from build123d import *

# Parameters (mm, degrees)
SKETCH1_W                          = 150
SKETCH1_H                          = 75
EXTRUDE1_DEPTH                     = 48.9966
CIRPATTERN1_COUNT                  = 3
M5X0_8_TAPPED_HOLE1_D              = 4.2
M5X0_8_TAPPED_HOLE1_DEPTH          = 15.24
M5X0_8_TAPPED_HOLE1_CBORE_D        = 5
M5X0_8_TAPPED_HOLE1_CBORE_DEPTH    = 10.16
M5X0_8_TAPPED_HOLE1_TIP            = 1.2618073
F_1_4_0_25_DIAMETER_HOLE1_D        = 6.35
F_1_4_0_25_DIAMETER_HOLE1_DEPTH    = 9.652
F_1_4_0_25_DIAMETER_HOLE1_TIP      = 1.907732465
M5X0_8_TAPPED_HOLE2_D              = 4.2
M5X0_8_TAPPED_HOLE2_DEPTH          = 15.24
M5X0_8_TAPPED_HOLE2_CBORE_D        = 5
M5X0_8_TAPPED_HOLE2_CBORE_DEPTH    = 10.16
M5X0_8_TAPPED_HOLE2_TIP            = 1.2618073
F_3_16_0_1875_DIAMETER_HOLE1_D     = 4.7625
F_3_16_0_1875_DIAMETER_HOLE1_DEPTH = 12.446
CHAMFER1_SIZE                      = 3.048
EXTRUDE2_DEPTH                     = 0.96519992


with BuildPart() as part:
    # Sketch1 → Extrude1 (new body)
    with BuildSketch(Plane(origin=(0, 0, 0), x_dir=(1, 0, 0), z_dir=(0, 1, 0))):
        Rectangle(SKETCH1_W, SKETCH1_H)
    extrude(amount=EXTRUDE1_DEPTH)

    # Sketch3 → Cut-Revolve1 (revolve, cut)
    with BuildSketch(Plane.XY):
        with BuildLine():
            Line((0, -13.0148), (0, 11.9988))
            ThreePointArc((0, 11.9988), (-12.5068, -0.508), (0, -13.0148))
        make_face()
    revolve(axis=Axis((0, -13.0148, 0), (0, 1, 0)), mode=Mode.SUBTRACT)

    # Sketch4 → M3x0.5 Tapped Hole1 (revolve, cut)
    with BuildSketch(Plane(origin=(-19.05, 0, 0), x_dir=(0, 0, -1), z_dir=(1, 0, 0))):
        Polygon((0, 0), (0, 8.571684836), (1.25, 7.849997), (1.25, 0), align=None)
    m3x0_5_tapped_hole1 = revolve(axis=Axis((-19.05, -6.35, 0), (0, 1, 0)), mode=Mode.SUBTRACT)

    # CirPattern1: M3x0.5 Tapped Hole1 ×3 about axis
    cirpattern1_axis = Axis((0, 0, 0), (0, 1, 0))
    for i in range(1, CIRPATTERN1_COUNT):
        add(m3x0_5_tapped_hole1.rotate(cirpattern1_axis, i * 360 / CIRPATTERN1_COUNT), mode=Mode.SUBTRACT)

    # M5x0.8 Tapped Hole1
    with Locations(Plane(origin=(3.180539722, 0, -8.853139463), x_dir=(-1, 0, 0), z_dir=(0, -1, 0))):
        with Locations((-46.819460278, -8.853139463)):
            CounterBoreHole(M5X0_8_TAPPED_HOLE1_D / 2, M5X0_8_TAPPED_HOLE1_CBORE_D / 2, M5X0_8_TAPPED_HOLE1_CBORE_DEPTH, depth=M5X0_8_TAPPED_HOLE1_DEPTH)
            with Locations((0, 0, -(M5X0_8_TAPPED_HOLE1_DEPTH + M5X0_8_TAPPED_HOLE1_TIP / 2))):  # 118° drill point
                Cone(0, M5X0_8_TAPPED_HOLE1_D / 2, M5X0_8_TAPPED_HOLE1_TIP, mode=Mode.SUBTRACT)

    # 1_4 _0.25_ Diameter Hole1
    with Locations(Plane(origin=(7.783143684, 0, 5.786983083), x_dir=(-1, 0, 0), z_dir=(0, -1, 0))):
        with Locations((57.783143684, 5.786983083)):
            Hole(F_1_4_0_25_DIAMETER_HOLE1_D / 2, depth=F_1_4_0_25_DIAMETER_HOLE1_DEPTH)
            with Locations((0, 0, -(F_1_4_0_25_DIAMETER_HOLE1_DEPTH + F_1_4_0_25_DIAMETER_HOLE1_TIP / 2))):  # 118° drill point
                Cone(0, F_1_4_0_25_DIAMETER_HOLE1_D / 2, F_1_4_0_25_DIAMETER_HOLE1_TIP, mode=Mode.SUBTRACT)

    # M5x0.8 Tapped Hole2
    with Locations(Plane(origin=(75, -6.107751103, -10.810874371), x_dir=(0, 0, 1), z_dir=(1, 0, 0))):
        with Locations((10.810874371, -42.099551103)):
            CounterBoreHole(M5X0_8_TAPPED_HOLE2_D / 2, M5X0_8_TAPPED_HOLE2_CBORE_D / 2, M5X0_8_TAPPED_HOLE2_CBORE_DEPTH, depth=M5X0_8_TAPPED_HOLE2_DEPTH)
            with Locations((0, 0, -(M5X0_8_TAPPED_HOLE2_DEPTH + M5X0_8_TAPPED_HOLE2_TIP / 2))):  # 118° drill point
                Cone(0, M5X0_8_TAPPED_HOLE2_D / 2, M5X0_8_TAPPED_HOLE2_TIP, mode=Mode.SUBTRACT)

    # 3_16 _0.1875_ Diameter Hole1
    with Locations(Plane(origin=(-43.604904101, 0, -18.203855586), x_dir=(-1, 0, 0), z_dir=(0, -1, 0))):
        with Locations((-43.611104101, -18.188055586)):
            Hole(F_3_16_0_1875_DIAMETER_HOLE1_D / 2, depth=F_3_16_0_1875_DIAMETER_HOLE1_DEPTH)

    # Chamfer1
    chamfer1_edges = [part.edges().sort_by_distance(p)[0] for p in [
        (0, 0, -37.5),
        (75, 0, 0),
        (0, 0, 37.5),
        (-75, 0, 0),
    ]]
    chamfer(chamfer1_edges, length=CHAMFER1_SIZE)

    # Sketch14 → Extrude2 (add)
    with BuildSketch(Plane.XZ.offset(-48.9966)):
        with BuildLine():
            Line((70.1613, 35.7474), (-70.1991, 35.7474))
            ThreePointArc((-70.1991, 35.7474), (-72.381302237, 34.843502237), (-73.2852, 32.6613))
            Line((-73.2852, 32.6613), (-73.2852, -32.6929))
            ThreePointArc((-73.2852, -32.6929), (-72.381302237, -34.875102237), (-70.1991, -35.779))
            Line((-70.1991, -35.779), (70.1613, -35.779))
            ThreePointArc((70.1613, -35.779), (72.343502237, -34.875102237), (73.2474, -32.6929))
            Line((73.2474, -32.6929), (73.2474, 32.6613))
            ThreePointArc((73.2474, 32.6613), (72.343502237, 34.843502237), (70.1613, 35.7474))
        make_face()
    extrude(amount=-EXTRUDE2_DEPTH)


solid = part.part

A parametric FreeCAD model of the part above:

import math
import FreeCAD as App
import Part
import Sketcher

V = App.Vector
Q = App.Units.Quantity


def edges_at(feature, points):
    """Names of the edges that pass closest to the given points."""
    edges = feature.Shape.Edges
    near = lambda p: min(range(len(edges)), key=lambda i: edges[i].distToShape(Part.Vertex(*p))[0])
    return sorted({f"Edge{near(p) + 1}" for p in points})

doc = App.newDocument("Part")
body = doc.addObject("PartDesign::Body", "Body")

sketch1 = body.newObject("Sketcher::SketchObject", "Sketch")
sketch1.AttachmentSupport = (doc.getObject("XZ_Plane"), [""])
sketch1.MapMode = "FlatFace"
sketch1.addGeometry(Part.LineSegment(V(-75, -37.5, 0), V(-75, 37.5, 0)), False)
sketch1.addGeometry(Part.LineSegment(V(-75, 37.5, 0), V(75, 37.5, 0)), False)
sketch1.addGeometry(Part.LineSegment(V(75, 37.5, 0), V(75, -37.5, 0)), False)
sketch1.addGeometry(Part.LineSegment(V(75, -37.5, 0), V(-75, -37.5, 0)), False)
sketch1.addConstraint(Sketcher.Constraint("Coincident", 0, 2, 1, 1))
sketch1.addConstraint(Sketcher.Constraint("Coincident", 1, 2, 2, 1))
sketch1.addConstraint(Sketcher.Constraint("Coincident", 2, 2, 3, 1))
sketch1.addConstraint(Sketcher.Constraint("Coincident", 3, 2, 0, 1))
sketch1.addConstraint(Sketcher.Constraint("Vertical", 0))
sketch1.addConstraint(Sketcher.Constraint("Horizontal", 1))
sketch1.addConstraint(Sketcher.Constraint("Vertical", 2))
sketch1.addConstraint(Sketcher.Constraint("Horizontal", 3))
sketch1.addConstraint(Sketcher.Constraint("Symmetric", 0, 2, 2, 2, -1, 1))
sketch1.addConstraint(Sketcher.Constraint("DistanceX", 1, 1, 1, 2, Q("150 mm")))
sketch1.addConstraint(Sketcher.Constraint("DistanceY", 0, 1, 0, 2, Q("75 mm")))
pad1 = body.newObject("PartDesign::Pad", "Pad")
pad1.Profile = sketch1
pad1.Length = Q("1.929 in")
pad1.Reversed = True

sketch2 = body.newObject("Sketcher::SketchObject", "Sketch001")
sketch2.AttachmentSupport = (doc.getObject("XY_Plane"), [""])
sketch2.MapMode = "FlatFace"
sketch2.addGeometry(Part.LineSegment(V(0, -13.0148, 0), V(0, 11.9988, 0)), False)
sketch2.addGeometry(Part.ArcOfCircle(Part.Circle(V(0, -0.508, 0), V(0, 0, 1), 12.5068), math.radians(90), math.radians(270)), False)
sketch2.addConstraint(Sketcher.Constraint("Coincident", 0, 1, 1, 2))
sketch2.addConstraint(Sketcher.Constraint("Coincident", 1, 1, 0, 2))
sketch2.addConstraint(Sketcher.Constraint("Vertical", 0))
sketch2.addConstraint(Sketcher.Constraint("PointOnObject", 1, 3, -2))
sketch2.addConstraint(Sketcher.Constraint("PointOnObject", 0, 1, -2))
sketch2.addConstraint(Sketcher.Constraint("DistanceY", 1, 3, -1, 1, Q("0.02 in")))
sketch2.addConstraint(Sketcher.Constraint("Radius", 1, Q("12.5068 mm")))
groove = body.newObject("PartDesign::Groove", "Groove")
groove.Profile = sketch2
groove.ReferenceAxis = (sketch2, ["V_Axis"])
groove.Angle = 360

sketch3 = body.newObject("Sketcher::SketchObject", "Sketch002")
sketch3.AttachmentSupport = (doc.getObject("YZ_Plane"), [""])
sketch3.MapMode = "FlatFace"
sketch3.AttachmentOffset = App.Placement(V(0, 0, -0.75 * 25.4), App.Rotation())
sketch3.addGeometry(Part.LineSegment(V(8.571685, 0, 0), V(0, 0, 0)), False)
sketch3.addGeometry(Part.LineSegment(V(0, 0, 0), V(0, -1.25, 0)), False)
sketch3.addGeometry(Part.LineSegment(V(0, -1.25, 0), V(7.849997, -1.25, 0)), False)
sketch3.addGeometry(Part.LineSegment(V(7.849997, -1.25, 0), V(8.571685, 0, 0)), False)
sketch3.addConstraint(Sketcher.Constraint("Coincident", 0, 2, 1, 1))
sketch3.addConstraint(Sketcher.Constraint("Coincident", 1, 2, 2, 1))
sketch3.addConstraint(Sketcher.Constraint("Coincident", 2, 2, 3, 1))
sketch3.addConstraint(Sketcher.Constraint("Coincident", 3, 2, 0, 1))
sketch3.addConstraint(Sketcher.Constraint("Horizontal", 0))
sketch3.addConstraint(Sketcher.Constraint("Vertical", 1))
sketch3.addConstraint(Sketcher.Constraint("Horizontal", 2))
sketch3.addConstraint(Sketcher.Constraint("Coincident", 0, 2, -1, 1))
sketch3.addConstraint(Sketcher.Constraint("Angle", 3, Q("60 deg")))
sketch3.addConstraint(Sketcher.Constraint("DistanceY", 1, 2, 1, 1, Q("1.25 mm")))
sketch3.addConstraint(Sketcher.Constraint("DistanceX", 0, 2, 0, 1, Q("8.571685 mm")))
groove2 = body.newObject("PartDesign::Groove", "Groove001")
groove2.Profile = sketch3
groove2.ReferenceAxis = (sketch3, ["H_Axis"])
groove2.Angle = 360
doc.recompute()

polarpattern = body.newObject("PartDesign::PolarPattern", "PolarPattern")
polarpattern.Originals = [groove2]
polarpattern.Axis = (doc.getObject("Y_Axis"), [""])
polarpattern.Angle = 360
polarpattern.Occurrences = 3
body.Tip = polarpattern

sketch4 = body.newObject("Sketcher::SketchObject", "Sketch003")
sketch4.AttachmentSupport = (doc.getObject("XZ_Plane"), [""])
sketch4.MapMode = "FlatFace"
sketch4.addGeometry(Part.Circle(V(50, 0, 0), V(0, 0, 1), 2.1), False)
sketch4.addConstraint(Sketcher.Constraint("PointOnObject", 0, 3, -1))
sketch4.addConstraint(Sketcher.Constraint("Diameter", 0, Q("4.2 mm")))
sketch4.addConstraint(Sketcher.Constraint("DistanceX", -1, 1, 0, 3, Q("50 mm")))
doc.recompute()
hole = body.newObject("PartDesign::Hole", "Hole")
hole.Profile = sketch4
hole.ThreadType = "None"
hole.Diameter = 4.2
hole.DepthType = "Dimension"
hole.Depth = Q("0.6 in")
hole.DrillPoint = "Angled"
hole.DrillPointAngle = 118
hole.HoleCutType = "Counterbore"
hole.HoleCutDiameter = 5
hole.HoleCutDepth = Q("0.4 in")

sketch5 = body.newObject("Sketcher::SketchObject", "Sketch004")
sketch5.AttachmentSupport = (doc.getObject("XZ_Plane"), [""])
sketch5.MapMode = "FlatFace"
sketch5.addGeometry(Part.Circle(V(-50, 0, 0), V(0, 0, 1), 3.175), False)
sketch5.addConstraint(Sketcher.Constraint("PointOnObject", 0, 3, -1))
sketch5.addConstraint(Sketcher.Constraint("Diameter", 0, Q("0.25 in")))
sketch5.addConstraint(Sketcher.Constraint("DistanceX", 0, 3, -1, 1, Q("50 mm")))
doc.recompute()
hole2 = body.newObject("PartDesign::Hole", "Hole001")
hole2.Profile = sketch5
hole2.ThreadType = "None"
hole2.Diameter = Q("0.25 in")
hole2.DepthType = "Dimension"
hole2.Depth = Q("0.38 in")
hole2.DrillPoint = "Angled"
hole2.DrillPointAngle = 118

sketch6 = body.newObject("Sketcher::SketchObject", "Sketch005")
sketch6.AttachmentSupport = (doc.getObject("YZ_Plane"), [""])
sketch6.MapMode = "FlatFace"
sketch6.AttachmentOffset = App.Placement(V(0, 0, 75), App.Rotation())
sketch6.addGeometry(Part.Circle(V(35.9918, 0, 0), V(0, 0, 1), 2.1), False)
sketch6.addConstraint(Sketcher.Constraint("PointOnObject", 0, 3, -1))
sketch6.addConstraint(Sketcher.Constraint("Diameter", 0, Q("4.2 mm")))
sketch6.addConstraint(Sketcher.Constraint("DistanceX", -1, 1, 0, 3, Q("1.417 in")))
doc.recompute()
hole3 = body.newObject("PartDesign::Hole", "Hole002")
hole3.Profile = sketch6
hole3.ThreadType = "None"
hole3.Diameter = 4.2
hole3.DepthType = "Dimension"
hole3.Depth = Q("0.6 in")
hole3.DrillPoint = "Angled"
hole3.DrillPointAngle = 118
hole3.HoleCutType = "Counterbore"
hole3.HoleCutDiameter = 5
hole3.HoleCutDepth = Q("0.4 in")

sketch7 = body.newObject("Sketcher::SketchObject", "Sketch006")
sketch7.AttachmentSupport = (doc.getObject("XZ_Plane"), [""])
sketch7.MapMode = "FlatFace"
sketch7.addGeometry(Part.Circle(V(0.0062, -0.0158, 0), V(0, 0, 1), 2.38125), False)
sketch7.addConstraint(Sketcher.Constraint("Diameter", 0, Q("0.1875 in")))
sketch7.addConstraint(Sketcher.Constraint("DistanceX", -1, 1, 0, 3, Q("0.0062 mm")))
sketch7.addConstraint(Sketcher.Constraint("DistanceY", 0, 3, -1, 1, Q("0.0158 mm")))
doc.recompute()
hole4 = body.newObject("PartDesign::Hole", "Hole003")
hole4.Profile = sketch7
hole4.ThreadType = "None"
hole4.Diameter = Q("0.1875 in")
hole4.DepthType = "Dimension"
hole4.Depth = Q("0.49 in")
hole4.DrillPoint = "Flat"
doc.recompute()

chamfer = body.newObject("PartDesign::Chamfer", "Chamfer")
chamfer.Base = (hole4, edges_at(hole4, [
    (0, 0, -37.5),
    (75, 0, 0),
    (0, 0, 37.5),
    (-75, 0, 0),
]))
chamfer.Size = Q("0.12 in")

sketch8 = body.newObject("Sketcher::SketchObject", "Sketch007")
sketch8.AttachmentSupport = (doc.getObject("XZ_Plane"), [""])
sketch8.MapMode = "FlatFace"
sketch8.AttachmentOffset = App.Placement(V(0, 0, -1.929 * 25.4), App.Rotation())
sketch8.addGeometry(Part.LineSegment(V(70.1613, 35.7474, 0), V(-70.1991, 35.7474, 0)), False)
sketch8.addGeometry(Part.ArcOfCircle(Part.Circle(V(-70.1991, 32.6613, 0), V(0, 0, 1), 3.0861), math.radians(90), math.radians(180)), False)
sketch8.addGeometry(Part.LineSegment(V(-73.2852, 32.6613, 0), V(-73.2852, -32.6929, 0)), False)
sketch8.addGeometry(Part.ArcOfCircle(Part.Circle(V(-70.1991, -32.6929, 0), V(0, 0, 1), 3.0861), math.radians(-180), math.radians(-90)), False)
sketch8.addGeometry(Part.LineSegment(V(-70.1991, -35.779, 0), V(70.1613, -35.779, 0)), False)
sketch8.addGeometry(Part.ArcOfCircle(Part.Circle(V(70.1613, -32.6929, 0), V(0, 0, 1), 3.0861), math.radians(-90), math.radians(0)), False)
sketch8.addGeometry(Part.LineSegment(V(73.2474, -32.6929, 0), V(73.2474, 32.6613, 0)), False)
sketch8.addGeometry(Part.ArcOfCircle(Part.Circle(V(70.1613, 32.6613, 0), V(0, 0, 1), 3.0861), math.radians(0), math.radians(90)), False)
sketch8.addConstraint(Sketcher.Constraint("Tangent", 0, 2, 1, 1))
sketch8.addConstraint(Sketcher.Constraint("Tangent", 1, 2, 2, 1))
sketch8.addConstraint(Sketcher.Constraint("Tangent", 2, 2, 3, 1))
sketch8.addConstraint(Sketcher.Constraint("Tangent", 3, 2, 4, 1))
sketch8.addConstraint(Sketcher.Constraint("Tangent", 4, 2, 5, 1))
sketch8.addConstraint(Sketcher.Constraint("Tangent", 5, 2, 6, 1))
sketch8.addConstraint(Sketcher.Constraint("Tangent", 6, 2, 7, 1))
sketch8.addConstraint(Sketcher.Constraint("Tangent", 7, 2, 0, 1))
sketch8.addConstraint(Sketcher.Constraint("Horizontal", 0))
sketch8.addConstraint(Sketcher.Constraint("Vertical", 2))
sketch8.addConstraint(Sketcher.Constraint("Horizontal", 4))
sketch8.addConstraint(Sketcher.Constraint("Vertical", 6))
sketch8.addConstraint(Sketcher.Constraint("Equal", 1, 3))
sketch8.addConstraint(Sketcher.Constraint("Equal", 3, 5))
sketch8.addConstraint(Sketcher.Constraint("Equal", 5, 7))
sketch8.addConstraint(Sketcher.Constraint("Radius", 1, Q("0.1215 in")))
sketch8.addConstraint(Sketcher.Constraint("DistanceX", 0, 2, 0, 1, Q("5.526 in")))
sketch8.addConstraint(Sketcher.Constraint("DistanceY", 2, 2, 2, 1, Q("2.573 in")))
sketch8.addConstraint(Sketcher.Constraint("DistanceX", 1, 3, -1, 1, Q("70.1991 mm")))
sketch8.addConstraint(Sketcher.Constraint("DistanceY", -1, 1, 1, 3, Q("32.6613 mm")))
pad2 = body.newObject("PartDesign::Pad", "Pad001")
pad2.Profile = sketch8
pad2.Length = Q("0.038 in")
pad2.Reversed = True

doc.recompute()
